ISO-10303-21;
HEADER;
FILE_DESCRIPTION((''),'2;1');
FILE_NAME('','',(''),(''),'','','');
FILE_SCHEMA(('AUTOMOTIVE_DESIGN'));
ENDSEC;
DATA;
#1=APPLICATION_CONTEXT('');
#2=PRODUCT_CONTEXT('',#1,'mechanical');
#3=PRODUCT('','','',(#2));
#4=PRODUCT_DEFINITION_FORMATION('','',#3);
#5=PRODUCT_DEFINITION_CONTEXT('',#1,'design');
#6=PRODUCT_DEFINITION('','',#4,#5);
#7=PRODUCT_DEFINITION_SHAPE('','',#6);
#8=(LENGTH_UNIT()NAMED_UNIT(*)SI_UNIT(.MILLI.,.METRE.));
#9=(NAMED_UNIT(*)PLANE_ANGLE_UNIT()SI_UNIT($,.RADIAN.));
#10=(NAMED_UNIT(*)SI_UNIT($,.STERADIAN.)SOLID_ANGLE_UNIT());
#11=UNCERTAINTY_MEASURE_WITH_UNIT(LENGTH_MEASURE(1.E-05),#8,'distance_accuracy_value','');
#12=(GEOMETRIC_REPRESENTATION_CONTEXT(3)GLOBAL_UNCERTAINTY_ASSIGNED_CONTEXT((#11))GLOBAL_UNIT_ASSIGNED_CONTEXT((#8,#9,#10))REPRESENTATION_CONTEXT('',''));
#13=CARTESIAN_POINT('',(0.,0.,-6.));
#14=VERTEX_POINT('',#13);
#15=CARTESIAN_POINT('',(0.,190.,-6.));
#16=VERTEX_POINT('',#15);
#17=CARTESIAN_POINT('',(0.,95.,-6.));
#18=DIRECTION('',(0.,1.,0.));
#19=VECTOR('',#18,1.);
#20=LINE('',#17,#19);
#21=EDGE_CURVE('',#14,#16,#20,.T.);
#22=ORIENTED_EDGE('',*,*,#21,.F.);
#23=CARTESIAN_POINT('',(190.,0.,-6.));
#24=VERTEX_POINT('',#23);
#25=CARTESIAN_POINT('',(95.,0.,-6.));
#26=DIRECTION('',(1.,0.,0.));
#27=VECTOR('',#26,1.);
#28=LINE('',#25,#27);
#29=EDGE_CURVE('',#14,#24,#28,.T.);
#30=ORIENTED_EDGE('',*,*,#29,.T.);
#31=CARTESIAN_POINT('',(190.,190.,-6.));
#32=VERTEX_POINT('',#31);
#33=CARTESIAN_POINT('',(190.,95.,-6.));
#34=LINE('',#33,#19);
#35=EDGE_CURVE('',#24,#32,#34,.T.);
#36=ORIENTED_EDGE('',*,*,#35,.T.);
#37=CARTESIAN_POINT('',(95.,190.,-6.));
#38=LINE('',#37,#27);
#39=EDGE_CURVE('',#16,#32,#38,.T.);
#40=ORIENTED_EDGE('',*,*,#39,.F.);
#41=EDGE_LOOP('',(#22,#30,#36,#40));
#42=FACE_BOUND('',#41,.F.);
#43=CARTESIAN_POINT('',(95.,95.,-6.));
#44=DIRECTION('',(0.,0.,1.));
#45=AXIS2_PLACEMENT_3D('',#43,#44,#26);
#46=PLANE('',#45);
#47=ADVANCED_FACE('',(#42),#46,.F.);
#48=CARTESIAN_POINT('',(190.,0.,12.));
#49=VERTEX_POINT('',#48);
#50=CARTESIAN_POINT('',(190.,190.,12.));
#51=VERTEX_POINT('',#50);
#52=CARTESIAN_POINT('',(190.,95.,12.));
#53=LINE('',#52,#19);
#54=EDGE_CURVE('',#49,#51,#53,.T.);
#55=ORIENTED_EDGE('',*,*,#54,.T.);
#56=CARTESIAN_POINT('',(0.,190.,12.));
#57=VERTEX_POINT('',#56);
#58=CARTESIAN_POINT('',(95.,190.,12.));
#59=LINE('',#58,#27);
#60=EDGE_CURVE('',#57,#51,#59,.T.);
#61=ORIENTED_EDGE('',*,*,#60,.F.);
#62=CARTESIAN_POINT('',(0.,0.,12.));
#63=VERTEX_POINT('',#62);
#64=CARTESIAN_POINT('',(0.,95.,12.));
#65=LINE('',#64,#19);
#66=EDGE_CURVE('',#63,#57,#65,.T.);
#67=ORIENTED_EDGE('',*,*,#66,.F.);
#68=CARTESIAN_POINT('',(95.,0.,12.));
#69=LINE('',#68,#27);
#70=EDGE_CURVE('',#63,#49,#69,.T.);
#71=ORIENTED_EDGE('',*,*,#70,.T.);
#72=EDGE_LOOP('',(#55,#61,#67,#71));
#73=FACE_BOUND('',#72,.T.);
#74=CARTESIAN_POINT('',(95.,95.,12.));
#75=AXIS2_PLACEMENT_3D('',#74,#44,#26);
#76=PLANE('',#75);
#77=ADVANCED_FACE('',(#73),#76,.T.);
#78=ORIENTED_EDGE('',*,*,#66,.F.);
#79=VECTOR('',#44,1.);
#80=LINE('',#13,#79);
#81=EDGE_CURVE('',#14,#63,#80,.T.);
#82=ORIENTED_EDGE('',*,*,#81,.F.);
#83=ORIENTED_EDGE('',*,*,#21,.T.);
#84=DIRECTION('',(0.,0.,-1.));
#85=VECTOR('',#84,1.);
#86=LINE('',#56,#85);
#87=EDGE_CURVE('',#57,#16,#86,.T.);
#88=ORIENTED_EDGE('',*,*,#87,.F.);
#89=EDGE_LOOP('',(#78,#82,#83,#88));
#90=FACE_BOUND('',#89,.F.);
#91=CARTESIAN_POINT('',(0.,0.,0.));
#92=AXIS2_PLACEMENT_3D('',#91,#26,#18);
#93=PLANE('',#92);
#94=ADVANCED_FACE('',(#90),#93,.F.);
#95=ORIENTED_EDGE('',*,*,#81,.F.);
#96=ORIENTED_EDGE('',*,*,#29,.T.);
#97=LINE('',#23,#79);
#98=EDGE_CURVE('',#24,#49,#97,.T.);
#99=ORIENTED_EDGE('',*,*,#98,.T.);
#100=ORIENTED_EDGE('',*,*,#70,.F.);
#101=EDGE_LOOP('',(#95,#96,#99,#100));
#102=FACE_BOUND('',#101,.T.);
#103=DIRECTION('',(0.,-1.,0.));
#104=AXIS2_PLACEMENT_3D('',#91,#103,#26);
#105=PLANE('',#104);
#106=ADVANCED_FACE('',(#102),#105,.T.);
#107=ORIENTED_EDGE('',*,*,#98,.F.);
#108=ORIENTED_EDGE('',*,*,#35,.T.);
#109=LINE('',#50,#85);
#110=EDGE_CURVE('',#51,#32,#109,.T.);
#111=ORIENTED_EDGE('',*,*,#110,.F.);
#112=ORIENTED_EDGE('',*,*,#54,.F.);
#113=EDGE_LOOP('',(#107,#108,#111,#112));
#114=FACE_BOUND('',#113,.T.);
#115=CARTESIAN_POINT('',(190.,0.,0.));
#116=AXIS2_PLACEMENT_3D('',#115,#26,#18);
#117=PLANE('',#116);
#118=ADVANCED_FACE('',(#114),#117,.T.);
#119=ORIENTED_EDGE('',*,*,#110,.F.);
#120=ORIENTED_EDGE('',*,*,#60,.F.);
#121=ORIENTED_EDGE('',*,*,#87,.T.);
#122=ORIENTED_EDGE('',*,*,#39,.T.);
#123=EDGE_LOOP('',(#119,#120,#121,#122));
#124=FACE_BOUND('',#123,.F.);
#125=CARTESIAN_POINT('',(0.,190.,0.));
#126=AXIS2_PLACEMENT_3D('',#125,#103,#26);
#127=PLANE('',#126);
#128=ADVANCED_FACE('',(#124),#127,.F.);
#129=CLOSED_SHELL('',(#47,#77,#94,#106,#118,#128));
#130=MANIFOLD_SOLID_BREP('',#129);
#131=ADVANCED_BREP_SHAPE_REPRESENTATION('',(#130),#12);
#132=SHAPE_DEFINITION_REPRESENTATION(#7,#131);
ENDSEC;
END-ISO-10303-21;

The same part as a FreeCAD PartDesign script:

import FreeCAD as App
import Part
import Sketcher


def add_polygon(sketch, points):
    """Adds a closed chain of lines whose ends are joined by coincident constraints."""
    first, n = sketch.GeometryCount, len(points)
    for a, b in zip(points, points[1:] + points[:1]):
        sketch.addGeometry(Part.LineSegment(App.Vector(*a, 0), App.Vector(*b, 0)), False)
    for i in range(n):
        sketch.addConstraint(Sketcher.Constraint("Coincident", first + i, 2, first + (i + 1) % n, 1))

doc = App.newDocument("Part")
body = doc.addObject("PartDesign::Body", "Body")

# Sketch on XY plane
sketch1 = body.newObject("Sketcher::SketchObject", "Sketch")
sketch1.AttachmentSupport = (doc.getObject("XY_Plane"), [""])
sketch1.MapMode = "FlatFace"
add_polygon(sketch1, [(0, 190), (0, 0), (190, 0), (190, 190)])  # lines 0-3
sketch1.addConstraint([
    Sketcher.Constraint("Vertical", 0),
    Sketcher.Constraint("Horizontal", 1),
    Sketcher.Constraint("Vertical", 2),
    Sketcher.Constraint("Horizontal", 3),
    Sketcher.Constraint("Coincident", 0, 2, -1, 1),
    Sketcher.Constraint("Equal", 3, 0),
    Sketcher.Constraint("DistanceX", 1, 1, 1, 2, 190.0),
])
pad1 = body.newObject("PartDesign::Pad", "Pad")
pad1.Profile = sketch1
pad1.Length = 12
pad1.Midplane = True

# Sketch on XY plane
sketch2 = body.newObject("Sketcher::SketchObject", "Sketch001")
sketch2.AttachmentSupport = (doc.getObject("XY_Plane"), [""])
sketch2.MapMode = "FlatFace"
sketch2.AttachmentOffset = App.Placement(App.Vector(0, 0, 6), App.Rotation())
add_polygon(sketch2, [(0, 190), (0, 0), (190, 0), (190, 190)])  # lines 0-3
sketch2.addConstraint([
    Sketcher.Constraint("Vertical", 0),
    Sketcher.Constraint("Horizontal", 1),
    Sketcher.Constraint("Vertical", 2),
    Sketcher.Constraint("Horizontal", 3),
    Sketcher.Constraint("Coincident", 0, 2, -1, 1),
    Sketcher.Constraint("Equal", 3, 0),
    Sketcher.Constraint("DistanceX", 1, 1, 1, 2, 190.0),
])
pad2 = body.newObject("PartDesign::Pad", "Pad001")
pad2.Profile = sketch2
pad2.Length = 12
pad2.Midplane = True

doc.recompute()
